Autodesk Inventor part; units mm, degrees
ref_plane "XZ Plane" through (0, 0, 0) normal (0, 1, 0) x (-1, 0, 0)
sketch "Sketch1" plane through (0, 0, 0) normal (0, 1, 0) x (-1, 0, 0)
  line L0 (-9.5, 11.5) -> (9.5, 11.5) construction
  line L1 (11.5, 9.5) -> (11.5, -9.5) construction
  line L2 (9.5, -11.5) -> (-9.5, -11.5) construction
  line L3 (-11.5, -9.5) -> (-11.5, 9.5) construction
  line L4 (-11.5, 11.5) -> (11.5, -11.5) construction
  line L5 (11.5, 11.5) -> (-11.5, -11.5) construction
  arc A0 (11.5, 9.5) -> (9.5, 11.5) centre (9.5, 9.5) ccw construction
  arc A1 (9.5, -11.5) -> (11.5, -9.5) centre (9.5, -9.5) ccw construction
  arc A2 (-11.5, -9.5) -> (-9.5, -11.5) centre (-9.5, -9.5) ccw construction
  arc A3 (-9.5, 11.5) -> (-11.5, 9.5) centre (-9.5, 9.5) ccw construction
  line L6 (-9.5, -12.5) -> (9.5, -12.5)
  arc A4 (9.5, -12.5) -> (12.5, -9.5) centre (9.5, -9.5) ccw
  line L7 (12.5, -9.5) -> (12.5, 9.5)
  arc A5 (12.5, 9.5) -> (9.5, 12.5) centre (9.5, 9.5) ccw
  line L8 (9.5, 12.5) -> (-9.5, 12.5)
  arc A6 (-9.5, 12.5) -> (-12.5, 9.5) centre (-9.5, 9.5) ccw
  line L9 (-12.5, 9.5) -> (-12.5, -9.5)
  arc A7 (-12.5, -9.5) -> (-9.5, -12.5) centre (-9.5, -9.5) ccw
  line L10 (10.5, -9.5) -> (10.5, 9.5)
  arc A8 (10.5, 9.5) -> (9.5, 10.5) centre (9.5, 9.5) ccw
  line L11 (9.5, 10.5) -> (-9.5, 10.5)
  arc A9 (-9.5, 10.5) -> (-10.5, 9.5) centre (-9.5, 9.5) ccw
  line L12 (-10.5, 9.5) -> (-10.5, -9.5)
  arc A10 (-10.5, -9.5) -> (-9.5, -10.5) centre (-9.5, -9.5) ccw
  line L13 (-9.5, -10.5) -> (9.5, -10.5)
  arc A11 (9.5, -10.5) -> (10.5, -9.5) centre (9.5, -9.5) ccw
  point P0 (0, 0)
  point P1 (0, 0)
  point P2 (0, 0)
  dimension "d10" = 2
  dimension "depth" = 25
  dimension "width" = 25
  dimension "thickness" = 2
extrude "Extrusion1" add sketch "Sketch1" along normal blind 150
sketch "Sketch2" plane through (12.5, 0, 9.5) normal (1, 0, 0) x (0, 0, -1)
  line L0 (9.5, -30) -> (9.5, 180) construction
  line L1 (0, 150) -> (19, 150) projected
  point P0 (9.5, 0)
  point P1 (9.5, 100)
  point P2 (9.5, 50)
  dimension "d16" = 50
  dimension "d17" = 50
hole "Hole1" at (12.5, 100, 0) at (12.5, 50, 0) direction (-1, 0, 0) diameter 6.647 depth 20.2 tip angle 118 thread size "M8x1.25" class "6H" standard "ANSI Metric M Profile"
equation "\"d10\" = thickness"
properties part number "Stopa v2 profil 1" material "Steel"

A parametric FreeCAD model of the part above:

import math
import FreeCAD as App
import Part
import Sketcher
Q = App.Units.Quantity

doc = App.newDocument("Part")
params = doc.addObject("Spreadsheet::Sheet", "Params")
for row, (alias, value) in enumerate([
    ("sketch1_radius", "1 mm"),
    ("sketch1_radius2", "3 mm"),
    ("sketch1_width", "19 mm"),
    ("pad1_length", "150 mm"),
    ("hole_diameter", "6.647 mm"),
    ("hole_depth", "20.2 mm"),
], start=1):
    params.set(f"A{row}", alias)
    params.set(f"B{row}", "=" + value)
    params.setAlias(f"B{row}", alias)

body = doc.addObject("PartDesign::Body", "Body")

# Sketch on XZ plane
sketch1 = body.newObject("Sketcher::SketchObject", "Sketch")
sketch1.AttachmentSupport = (doc.getObject("XZ_Plane"), [""])
sketch1.MapMode = "FlatFace"
sketch1.addGeometry([
    Part.ArcOfCircle(Part.Circle(App.Vector(9.5, -9.5, 0), App.Vector(0, 0, 1), 3), math.radians(-90), math.radians(0)),  # 0
    Part.LineSegment(App.Vector(9.5, -12.5, 0), App.Vector(-9.5, -12.5, 0)),  # 1
    Part.ArcOfCircle(Part.Circle(App.Vector(-9.5, -9.5, 0), App.Vector(0, 0, 1), 3), math.radians(180), math.radians(270)),  # 2
    Part.LineSegment(App.Vector(-12.5, -9.5, 0), App.Vector(-12.5, 9.5, 0)),  # 3
    Part.ArcOfCircle(Part.Circle(App.Vector(-9.5, 9.5, 0), App.Vector(0, 0, 1), 3), math.radians(90), math.radians(180)),  # 4
    Part.LineSegment(App.Vector(-9.5, 12.5, 0), App.Vector(9.5, 12.5, 0)),  # 5
    Part.ArcOfCircle(Part.Circle(App.Vector(9.5, 9.5, 0), App.Vector(0, 0, 1), 3), math.radians(0), math.radians(90)),  # 6
    Part.LineSegment(App.Vector(12.5, 9.5, 0), App.Vector(12.5, -9.5, 0)),  # 7
    Part.LineSegment(App.Vector(-10.5, 9.5, 0), App.Vector(-10.5, -9.5, 0)),  # 8
    Part.ArcOfCircle(Part.Circle(App.Vector(-9.5, -9.5, 0), App.Vector(0, 0, 1), 1), math.radians(180), math.radians(270)),  # 9
    Part.LineSegment(App.Vector(-9.5, -10.5, 0), App.Vector(9.5, -10.5, 0)),  # 10
    Part.ArcOfCircle(Part.Circle(App.Vector(9.5, -9.5, 0), App.Vector(0, 0, 1), 1), math.radians(-90), math.radians(0)),  # 11
    Part.LineSegment(App.Vector(10.5, -9.5, 0), App.Vector(10.5, 9.5, 0)),  # 12
    Part.ArcOfCircle(Part.Circle(App.Vector(9.5, 9.5, 0), App.Vector(0, 0, 1), 1), math.radians(0), math.radians(90)),  # 13
    Part.LineSegment(App.Vector(9.5, 10.5, 0), App.Vector(-9.5, 10.5, 0)),  # 14
    Part.ArcOfCircle(Part.Circle(App.Vector(-9.5, 9.5, 0), App.Vector(0, 0, 1), 1), math.radians(90), math.radians(180)),  # 15
], False)
sketch1.addConstraint([
    Sketcher.Constraint("Tangent", 0, 1, 1, 1),
    Sketcher.Constraint("Tangent", 1, 2, 2, 2),
    Sketcher.Constraint("Tangent", 2, 1, 3, 1),
    Sketcher.Constraint("Tangent", 3, 2, 4, 2),
    Sketcher.Constraint("Tangent", 4, 1, 5, 1),
    Sketcher.Constraint("Tangent", 5, 2, 6, 2),
    Sketcher.Constraint("Tangent", 6, 1, 7, 1),
    Sketcher.Constraint("Tangent", 7, 2, 0, 2),
    Sketcher.Constraint("Tangent", 8, 2, 9, 1),
    Sketcher.Constraint("Tangent", 9, 2, 10, 1),
    Sketcher.Constraint("Tangent", 10, 2, 11, 1),
    Sketcher.Constraint("Tangent", 11, 2, 12, 1),
    Sketcher.Constraint("Tangent", 12, 2, 13, 1),
    Sketcher.Constraint("Tangent", 13, 2, 14, 1),
    Sketcher.Constraint("Tangent", 14, 2, 15, 1),
    Sketcher.Constraint("Tangent", 15, 2, 8, 1),
    Sketcher.Constraint("Horizontal", 1),
    Sketcher.Constraint("Vertical", 3),
    Sketcher.Constraint("Horizontal", 5),
    Sketcher.Constraint("Vertical", 7),
    Sketcher.Constraint("Vertical", 8),
    Sketcher.Constraint("Horizontal", 10),
    Sketcher.Constraint("Vertical", 12),
    Sketcher.Constraint("Horizontal", 14),
    Sketcher.Constraint("Coincident", 9, 3, 2, 3),
    Sketcher.Constraint("Coincident", 11, 3, 0, 3),
    Sketcher.Constraint("Coincident", 13, 3, 6, 3),
    Sketcher.Constraint("Equal", 0, 2),
    Sketcher.Constraint("Equal", 2, 4),
    Sketcher.Constraint("Equal", 4, 6),
    Sketcher.Constraint("Equal", 13, 15),
    Sketcher.Constraint("Symmetric", 0, 3, 4, 3, -1, 1),
    Sketcher.Constraint("Equal", 14, 3),
    Sketcher.Constraint("Radius", 9, Q("1 mm")),
    Sketcher.Constraint("Radius", 0, Q("3 mm")),
    Sketcher.Constraint("DistanceX", 1, 2, 1, 1, Q("19 mm")),
])
sketch1.setExpression("Constraints[33]", "Params.sketch1_radius")
sketch1.setExpression("Constraints[34]", "Params.sketch1_radius2")
sketch1.setExpression("Constraints[35]", "Params.sketch1_width")
pad1 = body.newObject("PartDesign::Pad", "Pad")
pad1.Profile = sketch1
pad1.setExpression("Length", "Params.pad1_length")
pad1.Reversed = True

# Sketch on YZ plane
sketch2 = body.newObject("Sketcher::SketchObject", "Sketch001")
sketch2.AttachmentSupport = (doc.getObject("YZ_Plane"), [""])
sketch2.MapMode = "FlatFace"
sketch2.AttachmentOffset = App.Placement(App.Vector(0, 0, 12.5), App.Rotation())
sketch2.addGeometry([
    Part.Circle(App.Vector(100, 0, 0), App.Vector(0, 0, 1), 3.3),
    Part.Circle(App.Vector(50, 0, 0), App.Vector(0, 0, 1), 3.3),
], False)
sketch2.addConstraint([
    Sketcher.Constraint("Equal", 0, 1),
    Sketcher.Constraint("PointOnObject", 0, 3, -1),
    Sketcher.Constraint("PointOnObject", 1, 3, -1),
    Sketcher.Constraint("Diameter", 0, Q("6.647 mm")),
    Sketcher.Constraint("DistanceX", -1, 1, 0, 3, Q("100 mm")),
    Sketcher.Constraint("DistanceX", -1, 1, 1, 3, Q("50 mm")),
])
doc.recompute()
hole = body.newObject("PartDesign::Hole", "Hole")
hole.Profile = sketch2
hole.ThreadType = "None"
hole.setExpression("Diameter", "Params.hole_diameter")
hole.DepthType = "Dimension"
hole.setExpression("Depth", "Params.hole_depth")
hole.DrillPoint = "Angled"
hole.DrillPointAngle = 118

doc.recompute()
